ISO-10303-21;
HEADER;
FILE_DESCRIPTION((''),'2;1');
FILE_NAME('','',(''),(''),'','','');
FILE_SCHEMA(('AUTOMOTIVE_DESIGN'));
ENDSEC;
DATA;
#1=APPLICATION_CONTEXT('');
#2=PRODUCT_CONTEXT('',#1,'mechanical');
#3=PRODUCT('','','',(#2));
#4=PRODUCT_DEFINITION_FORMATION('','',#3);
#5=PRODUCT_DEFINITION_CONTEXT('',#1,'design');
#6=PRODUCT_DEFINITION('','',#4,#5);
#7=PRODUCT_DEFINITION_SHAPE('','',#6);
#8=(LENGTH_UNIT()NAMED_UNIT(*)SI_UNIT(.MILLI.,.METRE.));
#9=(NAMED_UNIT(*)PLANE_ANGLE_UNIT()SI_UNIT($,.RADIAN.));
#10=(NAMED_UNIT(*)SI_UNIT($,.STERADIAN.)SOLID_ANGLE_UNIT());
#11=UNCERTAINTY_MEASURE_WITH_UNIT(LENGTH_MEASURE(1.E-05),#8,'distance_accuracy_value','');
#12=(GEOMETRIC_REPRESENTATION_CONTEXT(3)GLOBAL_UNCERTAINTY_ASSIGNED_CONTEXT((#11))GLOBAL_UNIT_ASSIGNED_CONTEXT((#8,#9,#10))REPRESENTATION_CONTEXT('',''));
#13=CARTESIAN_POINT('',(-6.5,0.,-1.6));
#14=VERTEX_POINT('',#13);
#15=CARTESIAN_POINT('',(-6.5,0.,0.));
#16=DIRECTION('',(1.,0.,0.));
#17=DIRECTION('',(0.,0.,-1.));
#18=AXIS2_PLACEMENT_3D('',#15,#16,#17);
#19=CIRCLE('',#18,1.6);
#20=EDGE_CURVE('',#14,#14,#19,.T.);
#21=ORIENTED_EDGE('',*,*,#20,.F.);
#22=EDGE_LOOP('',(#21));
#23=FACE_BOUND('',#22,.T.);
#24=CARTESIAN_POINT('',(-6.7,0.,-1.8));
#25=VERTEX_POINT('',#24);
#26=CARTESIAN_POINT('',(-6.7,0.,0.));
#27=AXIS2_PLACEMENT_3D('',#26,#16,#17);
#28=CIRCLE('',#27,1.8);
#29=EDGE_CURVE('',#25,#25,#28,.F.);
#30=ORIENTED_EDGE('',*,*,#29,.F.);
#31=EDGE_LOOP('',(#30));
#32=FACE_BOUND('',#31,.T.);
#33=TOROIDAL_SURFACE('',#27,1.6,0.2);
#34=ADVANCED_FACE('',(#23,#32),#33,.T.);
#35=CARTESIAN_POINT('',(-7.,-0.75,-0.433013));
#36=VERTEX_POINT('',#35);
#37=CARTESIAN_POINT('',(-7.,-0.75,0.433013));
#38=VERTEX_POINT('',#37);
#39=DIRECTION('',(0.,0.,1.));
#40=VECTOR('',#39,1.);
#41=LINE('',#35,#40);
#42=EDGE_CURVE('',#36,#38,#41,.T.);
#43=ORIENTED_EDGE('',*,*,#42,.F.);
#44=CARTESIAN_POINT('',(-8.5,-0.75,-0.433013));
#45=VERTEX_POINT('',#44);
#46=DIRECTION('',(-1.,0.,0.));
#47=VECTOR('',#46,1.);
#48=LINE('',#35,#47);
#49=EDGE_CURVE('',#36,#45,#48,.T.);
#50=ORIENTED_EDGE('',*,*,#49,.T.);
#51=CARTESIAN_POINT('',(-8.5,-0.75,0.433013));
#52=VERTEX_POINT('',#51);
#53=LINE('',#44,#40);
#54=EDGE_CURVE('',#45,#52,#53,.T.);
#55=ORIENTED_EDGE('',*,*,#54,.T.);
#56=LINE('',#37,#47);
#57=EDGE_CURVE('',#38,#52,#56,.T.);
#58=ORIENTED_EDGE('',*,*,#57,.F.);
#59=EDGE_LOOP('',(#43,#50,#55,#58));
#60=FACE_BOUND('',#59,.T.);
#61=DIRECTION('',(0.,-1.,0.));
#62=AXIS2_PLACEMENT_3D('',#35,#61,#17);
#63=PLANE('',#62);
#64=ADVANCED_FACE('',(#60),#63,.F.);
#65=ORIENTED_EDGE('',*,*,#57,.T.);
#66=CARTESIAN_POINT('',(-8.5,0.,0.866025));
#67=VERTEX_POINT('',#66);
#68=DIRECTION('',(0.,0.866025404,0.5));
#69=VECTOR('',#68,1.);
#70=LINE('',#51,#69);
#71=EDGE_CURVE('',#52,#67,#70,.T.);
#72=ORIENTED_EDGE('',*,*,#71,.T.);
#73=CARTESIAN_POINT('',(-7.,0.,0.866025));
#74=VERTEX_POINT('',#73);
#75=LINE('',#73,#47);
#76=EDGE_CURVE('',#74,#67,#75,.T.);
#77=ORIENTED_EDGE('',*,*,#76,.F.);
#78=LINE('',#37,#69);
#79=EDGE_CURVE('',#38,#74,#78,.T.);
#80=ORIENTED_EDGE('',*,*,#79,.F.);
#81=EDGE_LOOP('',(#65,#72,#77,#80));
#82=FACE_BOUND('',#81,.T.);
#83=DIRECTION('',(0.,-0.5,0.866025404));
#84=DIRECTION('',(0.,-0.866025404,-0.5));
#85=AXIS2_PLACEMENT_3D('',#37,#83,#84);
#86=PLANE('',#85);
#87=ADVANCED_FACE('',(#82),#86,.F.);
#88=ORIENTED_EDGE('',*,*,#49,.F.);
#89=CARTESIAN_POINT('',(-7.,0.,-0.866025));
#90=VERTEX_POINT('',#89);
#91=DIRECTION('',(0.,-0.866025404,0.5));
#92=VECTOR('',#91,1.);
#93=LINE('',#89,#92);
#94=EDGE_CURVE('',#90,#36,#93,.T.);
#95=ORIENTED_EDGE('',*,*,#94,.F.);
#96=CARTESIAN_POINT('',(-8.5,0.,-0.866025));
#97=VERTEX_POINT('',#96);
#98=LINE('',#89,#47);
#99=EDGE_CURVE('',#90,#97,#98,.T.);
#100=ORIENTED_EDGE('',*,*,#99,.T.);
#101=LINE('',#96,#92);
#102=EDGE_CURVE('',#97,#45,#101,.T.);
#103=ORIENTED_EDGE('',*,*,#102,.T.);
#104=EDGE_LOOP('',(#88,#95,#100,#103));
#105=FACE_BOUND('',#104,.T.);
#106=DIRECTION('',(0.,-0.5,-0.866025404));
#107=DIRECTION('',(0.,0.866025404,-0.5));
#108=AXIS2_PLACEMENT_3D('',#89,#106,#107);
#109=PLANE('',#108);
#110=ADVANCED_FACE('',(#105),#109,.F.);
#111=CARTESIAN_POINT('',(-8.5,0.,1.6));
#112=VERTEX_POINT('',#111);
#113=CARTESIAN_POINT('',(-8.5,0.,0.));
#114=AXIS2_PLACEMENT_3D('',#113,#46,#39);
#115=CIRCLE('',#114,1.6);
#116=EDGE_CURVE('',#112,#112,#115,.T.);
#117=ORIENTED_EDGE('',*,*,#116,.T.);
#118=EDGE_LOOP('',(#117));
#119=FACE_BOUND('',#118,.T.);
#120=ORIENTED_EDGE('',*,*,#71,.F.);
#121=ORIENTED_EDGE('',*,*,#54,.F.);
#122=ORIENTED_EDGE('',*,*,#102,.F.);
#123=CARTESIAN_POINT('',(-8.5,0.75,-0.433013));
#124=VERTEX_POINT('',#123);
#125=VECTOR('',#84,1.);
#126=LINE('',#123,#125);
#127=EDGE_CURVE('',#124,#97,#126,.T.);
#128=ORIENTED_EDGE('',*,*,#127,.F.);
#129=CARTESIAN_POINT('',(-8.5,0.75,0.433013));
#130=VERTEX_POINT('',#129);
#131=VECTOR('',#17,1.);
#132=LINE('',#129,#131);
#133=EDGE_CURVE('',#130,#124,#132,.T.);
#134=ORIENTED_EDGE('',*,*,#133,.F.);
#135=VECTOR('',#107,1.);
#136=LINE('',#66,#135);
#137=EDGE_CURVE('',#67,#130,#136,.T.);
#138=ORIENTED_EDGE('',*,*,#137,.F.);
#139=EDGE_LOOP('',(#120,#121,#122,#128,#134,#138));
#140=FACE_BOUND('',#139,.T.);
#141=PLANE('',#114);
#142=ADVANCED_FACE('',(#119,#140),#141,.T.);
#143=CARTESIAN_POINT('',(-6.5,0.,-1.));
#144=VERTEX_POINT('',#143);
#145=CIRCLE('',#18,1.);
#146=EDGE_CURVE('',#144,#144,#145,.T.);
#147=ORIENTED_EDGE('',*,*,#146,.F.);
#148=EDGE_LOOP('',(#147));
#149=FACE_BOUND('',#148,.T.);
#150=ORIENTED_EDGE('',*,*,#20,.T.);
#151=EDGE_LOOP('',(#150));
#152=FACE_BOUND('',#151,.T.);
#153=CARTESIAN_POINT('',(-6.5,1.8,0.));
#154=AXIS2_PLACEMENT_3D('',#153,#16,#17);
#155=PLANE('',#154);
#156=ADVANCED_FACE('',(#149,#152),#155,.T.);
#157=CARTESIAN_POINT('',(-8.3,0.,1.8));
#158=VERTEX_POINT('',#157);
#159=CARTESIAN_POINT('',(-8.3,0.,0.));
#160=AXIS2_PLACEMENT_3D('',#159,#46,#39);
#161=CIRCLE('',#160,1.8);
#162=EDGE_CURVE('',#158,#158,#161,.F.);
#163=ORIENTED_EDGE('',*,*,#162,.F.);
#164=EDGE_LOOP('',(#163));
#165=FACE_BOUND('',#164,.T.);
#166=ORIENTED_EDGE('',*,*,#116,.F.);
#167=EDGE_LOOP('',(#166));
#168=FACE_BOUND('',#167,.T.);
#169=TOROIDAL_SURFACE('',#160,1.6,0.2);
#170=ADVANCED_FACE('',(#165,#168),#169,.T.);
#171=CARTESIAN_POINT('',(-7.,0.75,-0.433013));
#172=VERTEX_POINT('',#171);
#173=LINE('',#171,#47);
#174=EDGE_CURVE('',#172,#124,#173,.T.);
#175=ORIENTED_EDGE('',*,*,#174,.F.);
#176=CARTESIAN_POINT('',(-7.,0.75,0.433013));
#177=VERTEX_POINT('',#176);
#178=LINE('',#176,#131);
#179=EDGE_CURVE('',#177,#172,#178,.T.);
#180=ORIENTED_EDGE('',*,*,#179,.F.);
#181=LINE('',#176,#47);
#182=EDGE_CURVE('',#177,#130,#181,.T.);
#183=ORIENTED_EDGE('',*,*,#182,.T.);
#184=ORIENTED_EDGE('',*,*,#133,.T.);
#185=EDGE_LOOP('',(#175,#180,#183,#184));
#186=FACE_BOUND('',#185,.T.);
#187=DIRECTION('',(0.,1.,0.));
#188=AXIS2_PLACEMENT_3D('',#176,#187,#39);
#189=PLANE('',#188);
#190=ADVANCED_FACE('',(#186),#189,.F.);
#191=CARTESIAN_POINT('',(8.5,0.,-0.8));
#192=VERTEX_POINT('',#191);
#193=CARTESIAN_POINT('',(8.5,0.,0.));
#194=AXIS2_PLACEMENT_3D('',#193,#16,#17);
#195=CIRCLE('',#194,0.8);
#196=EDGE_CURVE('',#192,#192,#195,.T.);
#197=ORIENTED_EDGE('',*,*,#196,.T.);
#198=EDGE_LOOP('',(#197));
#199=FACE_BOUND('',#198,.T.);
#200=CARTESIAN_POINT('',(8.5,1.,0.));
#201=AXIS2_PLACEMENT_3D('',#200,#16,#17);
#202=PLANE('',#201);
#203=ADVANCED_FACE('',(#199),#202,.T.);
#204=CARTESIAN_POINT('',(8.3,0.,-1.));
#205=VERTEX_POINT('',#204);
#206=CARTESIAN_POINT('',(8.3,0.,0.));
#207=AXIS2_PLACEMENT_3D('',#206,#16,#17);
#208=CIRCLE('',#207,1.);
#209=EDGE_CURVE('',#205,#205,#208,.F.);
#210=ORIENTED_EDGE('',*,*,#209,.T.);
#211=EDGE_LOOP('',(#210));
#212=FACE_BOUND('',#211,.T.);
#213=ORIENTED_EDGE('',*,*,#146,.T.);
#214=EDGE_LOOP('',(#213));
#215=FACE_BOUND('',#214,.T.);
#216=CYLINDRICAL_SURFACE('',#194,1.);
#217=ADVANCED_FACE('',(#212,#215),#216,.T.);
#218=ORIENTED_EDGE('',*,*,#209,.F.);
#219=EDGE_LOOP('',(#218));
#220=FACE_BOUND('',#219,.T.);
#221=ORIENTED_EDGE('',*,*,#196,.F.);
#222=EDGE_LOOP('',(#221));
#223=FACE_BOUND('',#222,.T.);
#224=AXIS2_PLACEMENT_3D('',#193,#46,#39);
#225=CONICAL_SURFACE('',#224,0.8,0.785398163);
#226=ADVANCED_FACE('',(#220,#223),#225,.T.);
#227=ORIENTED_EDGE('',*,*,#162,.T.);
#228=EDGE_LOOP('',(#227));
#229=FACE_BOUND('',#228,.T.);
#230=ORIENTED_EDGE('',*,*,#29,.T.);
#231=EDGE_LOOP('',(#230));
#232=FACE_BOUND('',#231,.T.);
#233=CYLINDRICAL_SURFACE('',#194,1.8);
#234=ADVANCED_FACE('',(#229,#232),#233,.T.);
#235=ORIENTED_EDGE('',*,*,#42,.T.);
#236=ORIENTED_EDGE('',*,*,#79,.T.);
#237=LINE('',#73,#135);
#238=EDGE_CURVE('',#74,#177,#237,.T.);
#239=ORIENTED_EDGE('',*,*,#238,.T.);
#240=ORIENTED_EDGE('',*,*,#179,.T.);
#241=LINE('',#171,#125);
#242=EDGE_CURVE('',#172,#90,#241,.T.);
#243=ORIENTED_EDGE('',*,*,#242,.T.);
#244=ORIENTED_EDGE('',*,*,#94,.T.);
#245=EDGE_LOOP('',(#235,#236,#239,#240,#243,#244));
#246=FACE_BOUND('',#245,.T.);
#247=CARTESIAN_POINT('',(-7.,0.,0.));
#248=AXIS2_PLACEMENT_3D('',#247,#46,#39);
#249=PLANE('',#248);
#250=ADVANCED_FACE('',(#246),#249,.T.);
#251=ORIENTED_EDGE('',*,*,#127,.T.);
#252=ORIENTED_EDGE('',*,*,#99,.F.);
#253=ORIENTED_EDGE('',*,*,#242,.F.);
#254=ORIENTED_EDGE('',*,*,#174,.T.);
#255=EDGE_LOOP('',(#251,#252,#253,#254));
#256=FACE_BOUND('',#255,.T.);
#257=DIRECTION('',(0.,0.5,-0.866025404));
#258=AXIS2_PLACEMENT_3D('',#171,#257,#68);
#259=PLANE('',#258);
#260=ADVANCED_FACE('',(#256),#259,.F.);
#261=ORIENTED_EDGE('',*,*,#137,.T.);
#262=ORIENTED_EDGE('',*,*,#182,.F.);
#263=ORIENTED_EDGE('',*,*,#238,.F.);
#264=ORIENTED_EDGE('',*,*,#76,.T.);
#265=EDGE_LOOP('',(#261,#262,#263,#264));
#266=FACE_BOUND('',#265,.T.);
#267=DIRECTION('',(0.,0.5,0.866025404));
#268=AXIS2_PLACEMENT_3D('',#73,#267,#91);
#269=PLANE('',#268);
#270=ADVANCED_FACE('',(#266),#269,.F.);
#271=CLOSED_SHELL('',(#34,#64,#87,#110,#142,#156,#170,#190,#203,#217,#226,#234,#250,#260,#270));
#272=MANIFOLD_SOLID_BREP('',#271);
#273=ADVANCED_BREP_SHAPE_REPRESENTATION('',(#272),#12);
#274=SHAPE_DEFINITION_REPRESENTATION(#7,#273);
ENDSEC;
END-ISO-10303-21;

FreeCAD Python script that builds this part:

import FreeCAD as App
import Part
import Sketcher
from FreeCAD import Vector
Q = App.Units.Quantity


def edges_at(feature, points):
    """Names of the edges that pass closest to the given points."""
    edges = feature.Shape.Edges
    near = lambda p: min(range(len(edges)), key=lambda i: edges[i].distToShape(Part.Vertex(*p))[0])
    return sorted({f"Edge{near(p) + 1}" for p in points})


def add_polygon(sketch, points):
    """Adds a closed chain of lines whose ends are joined by coincident constraints."""
    first, n = sketch.GeometryCount, len(points)
    for a, b in zip(points, points[1:] + points[:1]):
        sketch.addGeometry(Part.LineSegment(App.Vector(*a, 0), App.Vector(*b, 0)), False)
    for i in range(n):
        sketch.addConstraint(Sketcher.Constraint("Coincident", first + i, 2, first + (i + 1) % n, 1))

doc = App.newDocument("Part")
body = doc.addObject("PartDesign::Body", "Body")

# Sketch on XY plane
sketch1 = doc.addObject("Sketcher::SketchObject", "Sketch")
body.addObject(sketch1)
sketch1.AttachmentSupport = (doc.XY_Plane, [""])
sketch1.MapMode = "FlatFace"
add_polygon(sketch1, [(-8.5, 1.8), (-8.5, 0), (8.5, 0), (8.5, 1), (-6.5, 1), (-6.5, 1.8)])  # lines 0-5
sketch1.addConstraint([
    Sketcher.Constraint("Vertical", 0),
    Sketcher.Constraint("Horizontal", 1),
    Sketcher.Constraint("Vertical", 2),
    Sketcher.Constraint("Horizontal", 3),
    Sketcher.Constraint("Vertical", 4),
    Sketcher.Constraint("Horizontal", 5),
    Sketcher.Constraint("Symmetric", 0, 2, 1, 2, -1, 1),
    Sketcher.Constraint("DistanceX", 1, 1, 1, 2, 17.0),
    Sketcher.Constraint("DistanceX", 3, 2, 3, 1, 15.0),
    Sketcher.Constraint("DistanceY", 2, 1, 2, 2, 1.0),
    Sketcher.Constraint("DistanceY", 0, 2, 0, 1, 1.8),
])
revolution = doc.addObject("PartDesign::Revolution", "Revolution")
body.addObject(revolution)
revolution.Profile = sketch1
revolution.ReferenceAxis = (sketch1, ["H_Axis"])
revolution.Angle = 360

# Sketch on YZ plane
sketch2 = doc.addObject("Sketcher::SketchObject", "Sketch001")
body.addObject(sketch2)
sketch2.AttachmentSupport = (doc.YZ_Plane, [""])
sketch2.MapMode = "FlatFace"
sketch2.AttachmentOffset = App.Placement(Vector(0, 0, -8.5), App.Rotation())
add_polygon(sketch2, [(0, 0.866025), (0.75, 0.433013), (0.75, -0.433013), (0, -0.866025), (-0.75, -0.433013), (-0.75, 0.433013)])  # lines 0-5
sketch2.addConstraint([
    Sketcher.Constraint("Vertical", 1),
    Sketcher.Constraint("Vertical", 4),
    Sketcher.Constraint("Symmetric", 0, 2, 3, 2, -1, 1),
    Sketcher.Constraint("Symmetric", 2, 2, 5, 2, -1, 1),
    Sketcher.Constraint("PointOnObject", 2, 2, -2),
    Sketcher.Constraint("Parallel", 2, 5),
    Sketcher.Constraint("Horizontal", 1, 2, 3, 2),
    Sketcher.Constraint("Angle", 0, Q("-30 deg")),
    Sketcher.Constraint("DistanceX", 3, 2, 1, 2, 1.5),
    Sketcher.Constraint("DistanceY", 1, 2, 1, 1, 0.866025),
])
pocket1 = doc.addObject("PartDesign::Pocket", "Pocket")
body.addObject(pocket1)
pocket1.Profile = sketch2
pocket1.Length = 1.5
pocket1.Reversed = True
doc.recompute()

fillet = doc.addObject("PartDesign::Fillet", "Fillet")
body.addObject(fillet)
fillet.Base = (pocket1, edges_at(pocket1, [(-6.5, 0, 1.8), (-8.5, 0, 1.8)]))
fillet.Radius = 0.2
doc.recompute()

chamfer = doc.addObject("PartDesign::Chamfer", "Chamfer")
body.addObject(chamfer)
chamfer.Base = (fillet, edges_at(fillet, [(8.5, 0, 1)]))
chamfer.Size = 0.2

doc.recompute()
